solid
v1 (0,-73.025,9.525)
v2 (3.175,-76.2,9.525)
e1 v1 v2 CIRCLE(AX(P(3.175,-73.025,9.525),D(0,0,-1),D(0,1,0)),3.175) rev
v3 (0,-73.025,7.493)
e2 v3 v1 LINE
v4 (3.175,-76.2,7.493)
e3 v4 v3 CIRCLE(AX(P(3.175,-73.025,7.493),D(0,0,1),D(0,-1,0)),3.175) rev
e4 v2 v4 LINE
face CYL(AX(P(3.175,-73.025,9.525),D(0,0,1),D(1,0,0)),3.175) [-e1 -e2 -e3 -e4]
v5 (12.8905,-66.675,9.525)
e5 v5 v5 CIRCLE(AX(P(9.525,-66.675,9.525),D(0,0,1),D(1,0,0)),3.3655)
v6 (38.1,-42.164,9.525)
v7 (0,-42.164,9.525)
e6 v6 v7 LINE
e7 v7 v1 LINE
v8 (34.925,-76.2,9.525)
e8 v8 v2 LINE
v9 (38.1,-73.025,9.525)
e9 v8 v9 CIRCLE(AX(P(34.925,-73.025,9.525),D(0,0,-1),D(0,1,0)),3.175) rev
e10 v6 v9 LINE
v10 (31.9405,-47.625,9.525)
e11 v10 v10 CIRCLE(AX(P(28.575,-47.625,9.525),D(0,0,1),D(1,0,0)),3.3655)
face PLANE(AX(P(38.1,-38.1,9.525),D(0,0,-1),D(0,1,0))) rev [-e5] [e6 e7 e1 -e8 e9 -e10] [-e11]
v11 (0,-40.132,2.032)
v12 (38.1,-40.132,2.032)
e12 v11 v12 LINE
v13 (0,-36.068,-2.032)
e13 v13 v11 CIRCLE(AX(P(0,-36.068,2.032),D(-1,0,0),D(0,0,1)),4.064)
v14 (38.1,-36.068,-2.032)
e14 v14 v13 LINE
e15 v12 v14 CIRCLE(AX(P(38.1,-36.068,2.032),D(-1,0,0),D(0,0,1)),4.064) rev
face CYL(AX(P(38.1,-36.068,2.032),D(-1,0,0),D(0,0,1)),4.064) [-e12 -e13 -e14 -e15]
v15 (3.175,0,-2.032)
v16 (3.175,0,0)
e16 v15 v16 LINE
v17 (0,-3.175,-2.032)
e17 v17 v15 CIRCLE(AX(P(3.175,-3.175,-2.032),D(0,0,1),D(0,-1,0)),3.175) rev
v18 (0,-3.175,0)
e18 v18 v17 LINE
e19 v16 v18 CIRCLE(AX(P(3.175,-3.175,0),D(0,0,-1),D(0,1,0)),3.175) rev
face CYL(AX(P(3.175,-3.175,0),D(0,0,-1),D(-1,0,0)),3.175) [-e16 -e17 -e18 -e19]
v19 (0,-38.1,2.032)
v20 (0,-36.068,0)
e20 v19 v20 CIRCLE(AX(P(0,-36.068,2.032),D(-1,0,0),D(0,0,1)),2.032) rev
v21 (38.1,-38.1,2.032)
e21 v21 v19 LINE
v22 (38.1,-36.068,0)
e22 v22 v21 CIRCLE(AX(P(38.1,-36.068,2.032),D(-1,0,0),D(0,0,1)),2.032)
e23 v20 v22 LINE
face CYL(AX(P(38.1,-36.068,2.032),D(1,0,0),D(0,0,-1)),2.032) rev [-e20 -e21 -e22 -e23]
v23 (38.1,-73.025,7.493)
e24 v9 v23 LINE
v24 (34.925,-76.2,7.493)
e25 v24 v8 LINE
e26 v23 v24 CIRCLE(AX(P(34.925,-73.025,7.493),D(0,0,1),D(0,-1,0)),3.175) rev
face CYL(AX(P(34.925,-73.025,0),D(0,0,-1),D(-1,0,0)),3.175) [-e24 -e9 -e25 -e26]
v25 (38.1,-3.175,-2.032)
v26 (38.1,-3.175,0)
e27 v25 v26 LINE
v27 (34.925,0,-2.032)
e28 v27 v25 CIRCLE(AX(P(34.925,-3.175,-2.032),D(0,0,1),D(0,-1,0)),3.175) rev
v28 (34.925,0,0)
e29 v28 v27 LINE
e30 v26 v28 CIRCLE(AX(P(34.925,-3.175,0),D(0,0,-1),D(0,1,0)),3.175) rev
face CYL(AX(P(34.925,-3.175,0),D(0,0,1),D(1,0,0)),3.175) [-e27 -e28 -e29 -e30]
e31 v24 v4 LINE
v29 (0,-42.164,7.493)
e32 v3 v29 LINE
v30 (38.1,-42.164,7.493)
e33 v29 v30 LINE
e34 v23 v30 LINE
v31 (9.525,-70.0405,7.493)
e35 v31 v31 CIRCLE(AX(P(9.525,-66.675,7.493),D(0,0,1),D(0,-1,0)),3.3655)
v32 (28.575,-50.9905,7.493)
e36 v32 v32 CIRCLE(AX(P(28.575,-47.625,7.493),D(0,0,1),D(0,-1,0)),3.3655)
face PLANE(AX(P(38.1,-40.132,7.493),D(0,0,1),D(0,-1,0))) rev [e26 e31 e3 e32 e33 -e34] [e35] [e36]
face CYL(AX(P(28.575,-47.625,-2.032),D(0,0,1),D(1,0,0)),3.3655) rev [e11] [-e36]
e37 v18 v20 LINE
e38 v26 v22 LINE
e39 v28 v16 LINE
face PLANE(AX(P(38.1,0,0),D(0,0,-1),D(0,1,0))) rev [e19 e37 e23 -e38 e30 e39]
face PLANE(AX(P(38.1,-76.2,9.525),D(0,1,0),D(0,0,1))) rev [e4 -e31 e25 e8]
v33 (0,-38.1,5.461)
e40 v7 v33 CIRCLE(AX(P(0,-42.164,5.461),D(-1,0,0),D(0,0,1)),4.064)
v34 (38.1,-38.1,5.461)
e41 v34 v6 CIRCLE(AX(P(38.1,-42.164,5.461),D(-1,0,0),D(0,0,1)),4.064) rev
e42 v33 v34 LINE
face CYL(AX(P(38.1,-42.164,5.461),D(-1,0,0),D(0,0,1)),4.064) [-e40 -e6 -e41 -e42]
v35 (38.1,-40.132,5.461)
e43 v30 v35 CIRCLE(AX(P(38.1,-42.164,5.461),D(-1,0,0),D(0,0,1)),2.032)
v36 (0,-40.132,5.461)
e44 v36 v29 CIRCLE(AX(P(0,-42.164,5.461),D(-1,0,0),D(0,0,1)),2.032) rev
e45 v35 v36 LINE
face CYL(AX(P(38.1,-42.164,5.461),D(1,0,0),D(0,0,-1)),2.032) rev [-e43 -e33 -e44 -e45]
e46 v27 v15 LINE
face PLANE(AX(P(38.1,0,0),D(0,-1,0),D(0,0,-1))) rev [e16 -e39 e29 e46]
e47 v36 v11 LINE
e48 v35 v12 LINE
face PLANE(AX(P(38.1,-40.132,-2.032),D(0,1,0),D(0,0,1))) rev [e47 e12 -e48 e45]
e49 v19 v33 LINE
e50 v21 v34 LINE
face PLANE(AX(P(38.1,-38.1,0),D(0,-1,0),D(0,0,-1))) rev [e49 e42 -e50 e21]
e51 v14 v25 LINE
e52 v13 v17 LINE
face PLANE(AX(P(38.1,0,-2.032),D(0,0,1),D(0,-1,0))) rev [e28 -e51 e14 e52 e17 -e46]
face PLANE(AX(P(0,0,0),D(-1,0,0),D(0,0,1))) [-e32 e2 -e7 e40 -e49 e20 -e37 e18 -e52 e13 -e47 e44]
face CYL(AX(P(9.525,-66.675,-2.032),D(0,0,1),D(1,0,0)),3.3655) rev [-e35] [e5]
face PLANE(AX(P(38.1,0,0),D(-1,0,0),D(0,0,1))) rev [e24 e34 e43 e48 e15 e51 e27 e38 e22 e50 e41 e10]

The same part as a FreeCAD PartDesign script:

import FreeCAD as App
import Part
import Sketcher
Q = App.Units.Quantity


def edges_at(feature, points):
    """Names of the edges that pass closest to the given points."""
    edges = feature.Shape.Edges
    near = lambda p: min(range(len(edges)), key=lambda i: edges[i].distToShape(Part.Vertex(*p))[0])
    return sorted({f"Edge{near(p) + 1}" for p in points})

doc = App.newDocument("Part")
body = doc.addObject("PartDesign::Body", "Body")

# Sketch on YZ plane
sketch1 = doc.addObject("Sketcher::SketchObject", "Sketch")
body.addObject(sketch1)
sketch1.AttachmentSupport = (doc.YZ_Plane, [""])
sketch1.MapMode = "FlatFace"
sketch1.addGeometry(Part.LineSegment(App.Vector(0, 0, 0), App.Vector(-38.1, 0, 0)), False)
sketch1.addGeometry(Part.LineSegment(App.Vector(-38.1, 0, 0), App.Vector(-38.1, 9.525, 0)), False)
sketch1.addGeometry(Part.LineSegment(App.Vector(-38.1, 9.525, 0), App.Vector(-76.2, 9.525, 0)), False)
sketch1.addGeometry(Part.LineSegment(App.Vector(-76.2, 9.525, 0), App.Vector(-76.2, 7.493, 0)), False)
sketch1.addGeometry(Part.LineSegment(App.Vector(-76.2, 7.493, 0), App.Vector(-40.132, 7.493, 0)), False)
sketch1.addGeometry(Part.LineSegment(App.Vector(-40.132, 7.493, 0), App.Vector(-40.132, -2.032, 0)), False)
sketch1.addGeometry(Part.LineSegment(App.Vector(-40.132, -2.032, 0), App.Vector(0, -2.032, 0)), False)
sketch1.addGeometry(Part.LineSegment(App.Vector(0, -2.032, 0), App.Vector(0, 0, 0)), False)
sketch1.addConstraint(Sketcher.Constraint("Coincident", 0, 2, 1, 1))
sketch1.addConstraint(Sketcher.Constraint("Coincident", 1, 2, 2, 1))
sketch1.addConstraint(Sketcher.Constraint("Coincident", 2, 2, 3, 1))
sketch1.addConstraint(Sketcher.Constraint("Coincident", 3, 2, 4, 1))
sketch1.addConstraint(Sketcher.Constraint("Coincident", 4, 2, 5, 1))
sketch1.addConstraint(Sketcher.Constraint("Coincident", 5, 2, 6, 1))
sketch1.addConstraint(Sketcher.Constraint("Coincident", 6, 2, 7, 1))
sketch1.addConstraint(Sketcher.Constraint("Coincident", 7, 2, 0, 1))
sketch1.addConstraint(Sketcher.Constraint("Horizontal", 0))
sketch1.addConstraint(Sketcher.Constraint("Vertical", 1))
sketch1.addConstraint(Sketcher.Constraint("Horizontal", 2))
sketch1.addConstraint(Sketcher.Constraint("Vertical", 3))
sketch1.addConstraint(Sketcher.Constraint("Horizontal", 4))
sketch1.addConstraint(Sketcher.Constraint("Vertical", 5))
sketch1.addConstraint(Sketcher.Constraint("Horizontal", 6))
sketch1.addConstraint(Sketcher.Constraint("Vertical", 7))
sketch1.addConstraint(Sketcher.Constraint("Coincident", 7, 2, -1, 1))
sketch1.addConstraint(Sketcher.Constraint("Equal", 0, 2))
sketch1.addConstraint(Sketcher.Constraint("Equal", 1, 5))
sketch1.addConstraint(Sketcher.Constraint("DistanceX", 0, 2, 0, 1, Q("1.5 in")))
sketch1.addConstraint(Sketcher.Constraint("DistanceX", 4, 1, 4, 2, Q("1.42 in")))
sketch1.addConstraint(Sketcher.Constraint("DistanceY", 3, 2, 3, 1, Q("0.08 in")))
sketch1.addConstraint(Sketcher.Constraint("DistanceY", 1, 1, 1, 2, Q("0.375 in")))
pad1 = doc.addObject("PartDesign::Pad", "Pad")
body.addObject(pad1)
pad1.Profile = sketch1
pad1.Length = Q("1.5 in")
doc.recompute()

fillet = doc.addObject("PartDesign::Fillet", "Fillet")
body.addObject(fillet)
fillet.Base = (pad1, edges_at(pad1, [(19.05, -40.132, 7.493), (19.05, -38.1, 0)]))
fillet.Radius = Q("0.08 in")
doc.recompute()

fillet2 = doc.addObject("PartDesign::Fillet", "Fillet001")
body.addObject(fillet2)
fillet2.Base = (fillet, edges_at(fillet, [(19.05, -40.132, -2.032), (19.05, -38.1, 9.525)]))
fillet2.Radius = Q("0.16 in")
doc.recompute()

fillet3 = doc.addObject("PartDesign::Fillet", "Fillet002")
body.addObject(fillet3)
fillet3.Base = (fillet2, edges_at(fillet2, [
    (0, 0, -1.016),
    (38.1, -76.2, 8.509),
    (38.1, 0, -1.016),
    (0, -76.2, 8.509),
]))
fillet3.Radius = Q("0.125 in")

# Sketch on XY plane
sketch2 = doc.addObject("Sketcher::SketchObject", "Sketch001")
body.addObject(sketch2)
sketch2.AttachmentSupport = (doc.XY_Plane, [""])
sketch2.MapMode = "FlatFace"
sketch2.AttachmentOffset = App.Placement(App.Vector(0, 0, 0.375 * 25.4), App.Rotation())
sketch2.addGeometry(Part.Circle(App.Vector(9.525, -66.675, 0), App.Vector(0, 0, 1), 3.3655), False)
sketch2.addGeometry(Part.Circle(App.Vector(28.575, -47.625, 0), App.Vector(0, 0, 1), 3.3655), False)
sketch2.addConstraint(Sketcher.Constraint("Equal", 0, 1))
sketch2.addConstraint(Sketcher.Constraint("Diameter", 0, Q("0.265 in")))
sketch2.addConstraint(Sketcher.Constraint("DistanceX", 0, 3, 1, 3, Q("0.75 in")))
sketch2.addConstraint(Sketcher.Constraint("DistanceY", 0, 3, 1, 3, Q("0.75 in")))
sketch2.addConstraint(Sketcher.Constraint("DistanceX", -1, 1, 0, 3, Q("0.375 in")))
sketch2.addConstraint(Sketcher.Constraint("DistanceY", 0, 3, -1, 1, Q("2.625 in")))
pocket1 = doc.addObject("PartDesign::Pocket", "Pocket")
body.addObject(pocket1)
pocket1.Profile = sketch2
pocket1.Type = "ThroughAll"

doc.recompute()
